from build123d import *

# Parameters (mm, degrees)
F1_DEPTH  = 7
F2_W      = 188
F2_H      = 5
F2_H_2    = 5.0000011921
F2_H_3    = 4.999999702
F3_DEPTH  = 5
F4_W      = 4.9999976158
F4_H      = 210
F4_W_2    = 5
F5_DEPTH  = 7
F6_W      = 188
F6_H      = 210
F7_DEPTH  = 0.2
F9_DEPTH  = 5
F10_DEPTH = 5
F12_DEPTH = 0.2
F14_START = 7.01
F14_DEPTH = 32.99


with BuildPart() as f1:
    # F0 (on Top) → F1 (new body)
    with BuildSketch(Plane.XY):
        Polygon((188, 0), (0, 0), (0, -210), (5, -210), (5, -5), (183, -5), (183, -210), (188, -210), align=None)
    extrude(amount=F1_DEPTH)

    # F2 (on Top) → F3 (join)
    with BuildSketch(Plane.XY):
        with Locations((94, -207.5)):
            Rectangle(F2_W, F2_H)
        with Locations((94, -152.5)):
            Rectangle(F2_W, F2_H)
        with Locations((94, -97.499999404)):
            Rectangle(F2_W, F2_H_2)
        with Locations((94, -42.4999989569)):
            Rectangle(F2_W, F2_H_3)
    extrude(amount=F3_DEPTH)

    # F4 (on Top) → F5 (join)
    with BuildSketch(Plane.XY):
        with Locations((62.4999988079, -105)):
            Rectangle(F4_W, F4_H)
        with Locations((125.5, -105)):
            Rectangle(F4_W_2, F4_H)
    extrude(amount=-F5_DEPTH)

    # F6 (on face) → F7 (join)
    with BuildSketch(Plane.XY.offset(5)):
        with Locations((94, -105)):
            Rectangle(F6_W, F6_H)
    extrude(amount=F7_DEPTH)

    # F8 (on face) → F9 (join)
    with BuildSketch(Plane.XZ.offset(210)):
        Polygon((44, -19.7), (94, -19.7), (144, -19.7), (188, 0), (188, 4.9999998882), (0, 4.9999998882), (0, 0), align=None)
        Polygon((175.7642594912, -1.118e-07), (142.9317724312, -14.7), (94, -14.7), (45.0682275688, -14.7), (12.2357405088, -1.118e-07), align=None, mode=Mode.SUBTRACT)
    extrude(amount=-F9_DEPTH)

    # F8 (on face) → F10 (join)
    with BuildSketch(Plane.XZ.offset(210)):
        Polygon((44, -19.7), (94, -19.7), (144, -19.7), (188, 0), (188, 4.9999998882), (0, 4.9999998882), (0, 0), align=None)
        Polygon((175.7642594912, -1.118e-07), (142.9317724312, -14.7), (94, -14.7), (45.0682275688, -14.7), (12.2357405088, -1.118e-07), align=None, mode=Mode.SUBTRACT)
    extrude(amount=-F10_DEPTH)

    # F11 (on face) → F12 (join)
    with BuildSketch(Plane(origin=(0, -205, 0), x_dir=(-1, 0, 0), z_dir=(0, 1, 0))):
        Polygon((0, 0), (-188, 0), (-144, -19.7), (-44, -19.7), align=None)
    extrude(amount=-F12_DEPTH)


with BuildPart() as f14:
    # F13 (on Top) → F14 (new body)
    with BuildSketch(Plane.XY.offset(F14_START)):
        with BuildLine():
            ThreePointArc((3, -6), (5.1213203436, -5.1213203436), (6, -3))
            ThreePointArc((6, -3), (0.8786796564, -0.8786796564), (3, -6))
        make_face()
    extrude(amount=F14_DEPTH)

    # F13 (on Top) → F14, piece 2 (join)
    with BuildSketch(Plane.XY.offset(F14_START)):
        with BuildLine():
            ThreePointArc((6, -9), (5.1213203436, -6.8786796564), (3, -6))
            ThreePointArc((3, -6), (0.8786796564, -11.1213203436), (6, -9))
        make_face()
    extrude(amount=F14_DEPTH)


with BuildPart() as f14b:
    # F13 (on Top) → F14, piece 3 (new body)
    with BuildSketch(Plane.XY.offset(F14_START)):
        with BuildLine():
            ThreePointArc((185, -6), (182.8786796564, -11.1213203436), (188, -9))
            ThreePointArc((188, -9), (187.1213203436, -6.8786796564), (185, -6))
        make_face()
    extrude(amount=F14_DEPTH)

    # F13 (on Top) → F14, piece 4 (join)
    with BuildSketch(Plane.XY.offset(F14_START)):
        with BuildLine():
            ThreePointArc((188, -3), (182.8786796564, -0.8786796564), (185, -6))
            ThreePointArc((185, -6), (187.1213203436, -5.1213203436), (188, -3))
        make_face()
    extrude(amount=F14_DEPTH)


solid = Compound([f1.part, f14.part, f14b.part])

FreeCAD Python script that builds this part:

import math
import FreeCAD as App
import Part
import Sketcher
from FreeCAD import Vector


def add_polygon(sketch, points):
    """Adds a closed chain of lines whose ends are joined by coincident constraints."""
    first, n = sketch.GeometryCount, len(points)
    for a, b in zip(points, points[1:] + points[:1]):
        sketch.addGeometry(Part.LineSegment(App.Vector(*a, 0), App.Vector(*b, 0)), False)
    for i in range(n):
        sketch.addConstraint(Sketcher.Constraint("Coincident", first + i, 2, first + (i + 1) % n, 1))

doc = App.newDocument("Part")
body = doc.addObject("PartDesign::Body", "Body")

sketch1 = body.newObject("Sketcher::SketchObject", "Sketch")
sketch1.AttachmentSupport = (doc.getObject("XY_Plane"), [""])
sketch1.MapMode = "FlatFace"
add_polygon(sketch1, [(188, 0), (0, 0), (0, -210), (5, -210), (5, -5), (183, -5), (183, -210), (188, -210)])
sketch1.addConstraint([
    Sketcher.Constraint("Horizontal", 0),
    Sketcher.Constraint("Vertical", 1),
    Sketcher.Constraint("Horizontal", 2),
    Sketcher.Constraint("Vertical", 3),
    Sketcher.Constraint("Horizontal", 4),
    Sketcher.Constraint("Vertical", 5),
    Sketcher.Constraint("Horizontal", 6),
    Sketcher.Constraint("Vertical", 7),
    Sketcher.Constraint("Coincident", 0, 2, -1, 1),
    Sketcher.Constraint("Horizontal", 2, 2, 5, 2),
    Sketcher.Constraint("Equal", 2, 6),
    Sketcher.Constraint("DistanceX", 0, 2, 0, 1, 188.0),
    Sketcher.Constraint("DistanceX", 2, 1, 2, 2, 5.0),
    Sketcher.Constraint("DistanceY", 1, 2, 1, 1, 210.0),
    Sketcher.Constraint("DistanceY", 3, 1, 3, 2, 205.0),
])
pad1 = body.newObject("PartDesign::Pad", "Pad")
pad1.Profile = sketch1
pad1.Length = 7

sketch2 = body.newObject("Sketcher::SketchObject", "Sketch001")
sketch2.AttachmentSupport = (doc.getObject("XY_Plane"), [""])
sketch2.MapMode = "FlatFace"
add_polygon(sketch2, [(0, -205), (0, -210), (188, -210), (188, -205)])
add_polygon(sketch2, [(0, -150), (0, -155), (188, -155), (188, -150)])
add_polygon(sketch2, [(0, -94.999999), (0, -100), (188, -100), (188, -94.999999)])
add_polygon(sketch2, [(0, -39.999999), (0, -44.999999), (188, -44.999999), (188, -39.999999)])
sketch2.addConstraint([
    Sketcher.Constraint("Vertical", 0),
    Sketcher.Constraint("Horizontal", 1),
    Sketcher.Constraint("Vertical", 2),
    Sketcher.Constraint("Horizontal", 3),
    Sketcher.Constraint("Vertical", 4),
    Sketcher.Constraint("Horizontal", 5),
    Sketcher.Constraint("Vertical", 6),
    Sketcher.Constraint("Horizontal", 7),
    Sketcher.Constraint("Vertical", 8),
    Sketcher.Constraint("Horizontal", 9),
    Sketcher.Constraint("Vertical", 10),
    Sketcher.Constraint("Horizontal", 11),
    Sketcher.Constraint("Vertical", 12),
    Sketcher.Constraint("Horizontal", 13),
    Sketcher.Constraint("Vertical", 14),
    Sketcher.Constraint("Horizontal", 15),
    Sketcher.Constraint("PointOnObject", 0, 2, -2),
    Sketcher.Constraint("PointOnObject", 4, 2, -2),
    Sketcher.Constraint("PointOnObject", 8, 2, -2),
    Sketcher.Constraint("PointOnObject", 12, 2, -2),
    Sketcher.Constraint("Vertical", 2, 2, 5, 2),
    Sketcher.Constraint("Vertical", 6, 2, 9, 2),
    Sketcher.Constraint("Vertical", 10, 2, 13, 2),
    Sketcher.Constraint("Equal", 2, 4),
    Sketcher.Constraint("Equal", 6, 8),
    Sketcher.Constraint("Equal", 10, 12),
    Sketcher.Constraint("DistanceX", 1, 1, 1, 2, 188.0),
    Sketcher.Constraint("DistanceY", 0, 2, 0, 1, 5.0),
    Sketcher.Constraint("DistanceY", 0, 2, -1, 1, 210.0),
    Sketcher.Constraint("DistanceY", 4, 2, -1, 1, 155.0),
    Sketcher.Constraint("DistanceY", 8, 2, -1, 1, 100.0),
    Sketcher.Constraint("DistanceY", 12, 2, -1, 1, 44.999999),
])
pad2 = body.newObject("PartDesign::Pad", "Pad001")
pad2.Profile = sketch2
pad2.Length = 5

sketch3 = body.newObject("Sketcher::SketchObject", "Sketch002")
sketch3.AttachmentSupport = (doc.getObject("XY_Plane"), [""])
sketch3.MapMode = "FlatFace"
add_polygon(sketch3, [(60, 0), (60, -210), (64.999998, -210), (64.999998, 0)])
add_polygon(sketch3, [(123, 0), (123, -210), (128, -210), (128, 0)])
sketch3.addConstraint([
    Sketcher.Constraint("Vertical", 0),
    Sketcher.Constraint("Horizontal", 1),
    Sketcher.Constraint("Vertical", 2),
    Sketcher.Constraint("Horizontal", 3),
    Sketcher.Constraint("Vertical", 4),
    Sketcher.Constraint("Horizontal", 5),
    Sketcher.Constraint("Vertical", 6),
    Sketcher.Constraint("Horizontal", 7),
    Sketcher.Constraint("PointOnObject", 2, 2, -1),
    Sketcher.Constraint("PointOnObject", 6, 2, -1),
    Sketcher.Constraint("Horizontal", 1, 2, 4, 2),
    Sketcher.Constraint("DistanceX", 5, 1, 5, 2, 5.0),
    Sketcher.Constraint("DistanceY", 0, 2, 0, 1, 210.0),
    Sketcher.Constraint("DistanceX", -1, 1, 0, 2, 60.0),
    Sketcher.Constraint("DistanceX", -1, 1, 4, 2, 123.0),
    Sketcher.Constraint("DistanceX", 1, 1, 1, 2, 4.999998),
])
pad3 = body.newObject("PartDesign::Pad", "Pad002")
pad3.Profile = sketch3
pad3.Length = 7
pad3.Reversed = True

sketch4 = body.newObject("Sketcher::SketchObject", "Sketch003")
sketch4.AttachmentSupport = (doc.getObject("XY_Plane"), [""])
sketch4.MapMode = "FlatFace"
sketch4.AttachmentOffset = App.Placement(Vector(0, 0, 5), App.Rotation())
add_polygon(sketch4, [(0, 0), (0, -210), (188, -210), (188, 0)])
sketch4.addConstraint([
    Sketcher.Constraint("Vertical", 0),
    Sketcher.Constraint("Horizontal", 1),
    Sketcher.Constraint("Vertical", 2),
    Sketcher.Constraint("Horizontal", 3),
    Sketcher.Constraint("Coincident", 3, 2, -1, 1),
    Sketcher.Constraint("DistanceX", 1, 1, 1, 2, 188.0),
    Sketcher.Constraint("DistanceY", 0, 2, 0, 1, 210.0),
])
pad4 = body.newObject("PartDesign::Pad", "Pad003")
pad4.Profile = sketch4
pad4.Length = 0.2

sketch5 = body.newObject("Sketcher::SketchObject", "Sketch004")
sketch5.AttachmentSupport = (doc.getObject("XZ_Plane"), [""])
sketch5.MapMode = "FlatFace"
sketch5.AttachmentOffset = App.Placement(Vector(0, 0, 210), App.Rotation())
add_polygon(sketch5, [(44, -19.7), (144, -19.7), (188, 0), (188, 5), (0, 5), (0, 0)])
add_polygon(sketch5, [(12.235741, 0), (175.764259, 0), (142.931772, -14.7), (45.068228, -14.7)])
sketch5.addConstraint([
    Sketcher.Constraint("Horizontal", 0),
    Sketcher.Constraint("Vertical", 2),
    Sketcher.Constraint("Horizontal", 3),
    Sketcher.Constraint("Vertical", 4),
    Sketcher.Constraint("Horizontal", 6),
    Sketcher.Constraint("Horizontal", 8),
    Sketcher.Constraint("Coincident", 4, 2, -1, 1),
    Sketcher.Constraint("PointOnObject", 1, 2, -1),
    Sketcher.Constraint("PointOnObject", 6, 2, -1),
    Sketcher.Constraint("Parallel", 1, 7),
    Sketcher.Constraint("Parallel", 5, 9),
    Sketcher.Constraint("Equal", 1, 5),
    Sketcher.Constraint("DistanceX", 0, 1, 0, 2, 100.0),
    Sketcher.Constraint("DistanceX", 3, 2, 3, 1, 188.0),
    Sketcher.Constraint("DistanceY", 2, 1, 2, 2, 5.0),
    Sketcher.Constraint("DistanceY", 0, 2, 7, 2, 5.0),
    Sketcher.Constraint("DistanceY", 0, 2, -1, 1, 19.7),
    Sketcher.Constraint("DistanceX", 6, 1, 6, 2, 163.528519),
    Sketcher.Constraint("DistanceX", -1, 1, 6, 2, 175.764259),
])
pad5 = body.newObject("PartDesign::Pad", "Pad004")
pad5.Profile = sketch5
pad5.Length = 5
pad5.Reversed = True

sketch6 = body.newObject("Sketcher::SketchObject", "Sketch005")
sketch6.AttachmentSupport = (doc.getObject("XZ_Plane"), [""])
sketch6.MapMode = "FlatFace"
sketch6.AttachmentOffset = App.Placement(Vector(0, 0, 210), App.Rotation())
add_polygon(sketch6, [(44, -19.7), (144, -19.7), (188, 0), (188, 5), (0, 5), (0, 0)])
add_polygon(sketch6, [(12.235741, 0), (175.764259, 0), (142.931772, -14.7), (45.068228, -14.7)])
sketch6.addConstraint([
    Sketcher.Constraint("Horizontal", 0),
    Sketcher.Constraint("Vertical", 2),
    Sketcher.Constraint("Horizontal", 3),
    Sketcher.Constraint("Vertical", 4),
    Sketcher.Constraint("Horizontal", 6),
    Sketcher.Constraint("Horizontal", 8),
    Sketcher.Constraint("Coincident", 4, 2, -1, 1),
    Sketcher.Constraint("PointOnObject", 1, 2, -1),
    Sketcher.Constraint("PointOnObject", 6, 2, -1),
    Sketcher.Constraint("Parallel", 1, 7),
    Sketcher.Constraint("Parallel", 5, 9),
    Sketcher.Constraint("Equal", 1, 5),
    Sketcher.Constraint("DistanceX", 0, 1, 0, 2, 100.0),
    Sketcher.Constraint("DistanceX", 3, 2, 3, 1, 188.0),
    Sketcher.Constraint("DistanceY", 2, 1, 2, 2, 5.0),
    Sketcher.Constraint("DistanceY", 0, 2, 7, 2, 5.0),
    Sketcher.Constraint("DistanceY", 0, 2, -1, 1, 19.7),
    Sketcher.Constraint("DistanceX", 6, 1, 6, 2, 163.528519),
    Sketcher.Constraint("DistanceX", -1, 1, 6, 2, 175.764259),
])
pad6 = body.newObject("PartDesign::Pad", "Pad005")
pad6.Profile = sketch6
pad6.Length = 5
pad6.Reversed = True

sketch7 = body.newObject("Sketcher::SketchObject", "Sketch006")
sketch7.AttachmentSupport = (doc.getObject("XZ_Plane"), [""])
sketch7.MapMode = "FlatFace"
sketch7.AttachmentOffset = App.Placement(Vector(0, 0, 205), App.Rotation())
add_polygon(sketch7, [(0, 0), (188, 0), (144, -19.7), (44, -19.7)])
sketch7.addConstraint([
    Sketcher.Constraint("Horizontal", 0),
    Sketcher.Constraint("Horizontal", 2),
    Sketcher.Constraint("Coincident", 3, 2, -1, 1),
    Sketcher.Constraint("Equal", 1, 3),
    Sketcher.Constraint("DistanceX", 0, 1, 0, 2, 188.0),
    Sketcher.Constraint("DistanceX", 2, 2, 2, 1, 100.0),
    Sketcher.Constraint("DistanceY", 1, 2, -1, 1, 19.7),
])
pad7 = body.newObject("PartDesign::Pad", "Pad006")
pad7.Profile = sketch7
pad7.Length = 0.2
body2 = doc.addObject("PartDesign::Body", "Body001")
body2.AllowCompound = True

sketch8 = body2.newObject("Sketcher::SketchObject", "Sketch007")
sketch8.AttachmentSupport = (doc.getObject("XY_Plane001"), [""])
sketch8.MapMode = "FlatFace"
sketch8.AttachmentOffset = App.Placement(Vector(0, 0, 7.01), App.Rotation())
sketch8.addGeometry([
    Part.ArcOfCircle(Part.Circle(Vector(3, -3, 0), Vector(0, 0, 1), 3), math.radians(-90), math.radians(0)),
    Part.ArcOfCircle(Part.Circle(Vector(3, -3, 0), Vector(0, 0, 1), 3), math.radians(0), math.radians(270)),
], False)
sketch8.addConstraint([
    Sketcher.Constraint("Tangent", 0, 1, 1, 2),
    Sketcher.Constraint("Coincident", 1, 1, 0, 2),
    Sketcher.Constraint("Horizontal", 0, 3, 1, 1),
    Sketcher.Constraint("Vertical", 1, 3, 0, 1),
    Sketcher.Constraint("Radius", 0, 3.0),
    Sketcher.Constraint("DistanceX", -1, 1, 0, 3, 3.0),
    Sketcher.Constraint("DistanceY", 0, 3, -1, 1, 3.0),
])
pad8 = body2.newObject("PartDesign::Pad", "Pad007")
pad8.Profile = sketch8
pad8.Length = 32.99

sketch9 = body2.newObject("Sketcher::SketchObject", "Sketch008")
sketch9.AttachmentSupport = (doc.getObject("XY_Plane001"), [""])
sketch9.MapMode = "FlatFace"
sketch9.AttachmentOffset = App.Placement(Vector(0, 0, 7.01), App.Rotation())
sketch9.addGeometry([
    Part.ArcOfCircle(Part.Circle(Vector(3, -9, 0), Vector(0, 0, 1), 3), math.radians(0), math.radians(90)),
    Part.ArcOfCircle(Part.Circle(Vector(3, -9, 0), Vector(0, 0, 1), 3), math.radians(90), math.radians(360)),
], False)
sketch9.addConstraint([
    Sketcher.Constraint("Tangent", 0, 1, 1, 2),
    Sketcher.Constraint("Coincident", 1, 1, 0, 2),
    Sketcher.Constraint("Horizontal", 1, 3, 0, 1),
    Sketcher.Constraint("Vertical", 0, 3, 1, 1),
    Sketcher.Constraint("Radius", 0, 3.0),
    Sketcher.Constraint("DistanceX", -1, 1, 0, 3, 3.0),
    Sketcher.Constraint("DistanceY", 0, 3, -1, 1, 9.0),
])
pad9 = body2.newObject("PartDesign::Pad", "Pad008")
pad9.Profile = sketch9
pad9.Length = 32.99
body3 = doc.addObject("PartDesign::Body", "Body002")
body3.AllowCompound = True

sketch10 = body3.newObject("Sketcher::SketchObject", "Sketch009")
sketch10.AttachmentSupport = (doc.getObject("XY_Plane002"), [""])
sketch10.MapMode = "FlatFace"
sketch10.AttachmentOffset = App.Placement(Vector(0, 0, 7.01), App.Rotation())
sketch10.addGeometry([
    Part.ArcOfCircle(Part.Circle(Vector(185, -9, 0), Vector(0, 0, 1), 3), math.radians(90), math.radians(360)),
    Part.ArcOfCircle(Part.Circle(Vector(185, -9, 0), Vector(0, 0, 1), 3), math.radians(0), math.radians(90)),
], False)
sketch10.addConstraint([
    Sketcher.Constraint("Tangent", 0, 1, 1, 2),
    Sketcher.Constraint("Coincident", 1, 1, 0, 2),
    Sketcher.Constraint("Horizontal", 0, 3, 1, 1),
    Sketcher.Constraint("Vertical", 1, 3, 0, 1),
    Sketcher.Constraint("Radius", 0, 3.0),
    Sketcher.Constraint("DistanceX", -1, 1, 0, 3, 185.0),
    Sketcher.Constraint("DistanceY", 0, 3, -1, 1, 9.0),
])
pad10 = body3.newObject("PartDesign::Pad", "Pad009")
pad10.Profile = sketch10
pad10.Length = 32.99

sketch11 = body3.newObject("Sketcher::SketchObject", "Sketch010")
sketch11.AttachmentSupport = (doc.getObject("XY_Plane002"), [""])
sketch11.MapMode = "FlatFace"
sketch11.AttachmentOffset = App.Placement(Vector(0, 0, 7.01), App.Rotation())
sketch11.addGeometry([
    Part.ArcOfCircle(Part.Circle(Vector(185, -3, 0), Vector(0, 0, 1), 3), math.radians(0), math.radians(270)),
    Part.ArcOfCircle(Part.Circle(Vector(185, -3, 0), Vector(0, 0, 1), 3), math.radians(-90), math.radians(0)),
], False)
sketch11.addConstraint([
    Sketcher.Constraint("Tangent", 0, 1, 1, 2),
    Sketcher.Constraint("Coincident", 1, 1, 0, 2),
    Sketcher.Constraint("Horizontal", 1, 3, 0, 1),
    Sketcher.Constraint("Vertical", 0, 3, 1, 1),
    Sketcher.Constraint("Radius", 0, 3.0),
    Sketcher.Constraint("DistanceX", -1, 1, 0, 3, 185.0),
    Sketcher.Constraint("DistanceY", 0, 3, -1, 1, 3.0),
])
pad11 = body3.newObject("PartDesign::Pad", "Pad010")
pad11.Profile = sketch11
pad11.Length = 32.99

doc.recompute()
